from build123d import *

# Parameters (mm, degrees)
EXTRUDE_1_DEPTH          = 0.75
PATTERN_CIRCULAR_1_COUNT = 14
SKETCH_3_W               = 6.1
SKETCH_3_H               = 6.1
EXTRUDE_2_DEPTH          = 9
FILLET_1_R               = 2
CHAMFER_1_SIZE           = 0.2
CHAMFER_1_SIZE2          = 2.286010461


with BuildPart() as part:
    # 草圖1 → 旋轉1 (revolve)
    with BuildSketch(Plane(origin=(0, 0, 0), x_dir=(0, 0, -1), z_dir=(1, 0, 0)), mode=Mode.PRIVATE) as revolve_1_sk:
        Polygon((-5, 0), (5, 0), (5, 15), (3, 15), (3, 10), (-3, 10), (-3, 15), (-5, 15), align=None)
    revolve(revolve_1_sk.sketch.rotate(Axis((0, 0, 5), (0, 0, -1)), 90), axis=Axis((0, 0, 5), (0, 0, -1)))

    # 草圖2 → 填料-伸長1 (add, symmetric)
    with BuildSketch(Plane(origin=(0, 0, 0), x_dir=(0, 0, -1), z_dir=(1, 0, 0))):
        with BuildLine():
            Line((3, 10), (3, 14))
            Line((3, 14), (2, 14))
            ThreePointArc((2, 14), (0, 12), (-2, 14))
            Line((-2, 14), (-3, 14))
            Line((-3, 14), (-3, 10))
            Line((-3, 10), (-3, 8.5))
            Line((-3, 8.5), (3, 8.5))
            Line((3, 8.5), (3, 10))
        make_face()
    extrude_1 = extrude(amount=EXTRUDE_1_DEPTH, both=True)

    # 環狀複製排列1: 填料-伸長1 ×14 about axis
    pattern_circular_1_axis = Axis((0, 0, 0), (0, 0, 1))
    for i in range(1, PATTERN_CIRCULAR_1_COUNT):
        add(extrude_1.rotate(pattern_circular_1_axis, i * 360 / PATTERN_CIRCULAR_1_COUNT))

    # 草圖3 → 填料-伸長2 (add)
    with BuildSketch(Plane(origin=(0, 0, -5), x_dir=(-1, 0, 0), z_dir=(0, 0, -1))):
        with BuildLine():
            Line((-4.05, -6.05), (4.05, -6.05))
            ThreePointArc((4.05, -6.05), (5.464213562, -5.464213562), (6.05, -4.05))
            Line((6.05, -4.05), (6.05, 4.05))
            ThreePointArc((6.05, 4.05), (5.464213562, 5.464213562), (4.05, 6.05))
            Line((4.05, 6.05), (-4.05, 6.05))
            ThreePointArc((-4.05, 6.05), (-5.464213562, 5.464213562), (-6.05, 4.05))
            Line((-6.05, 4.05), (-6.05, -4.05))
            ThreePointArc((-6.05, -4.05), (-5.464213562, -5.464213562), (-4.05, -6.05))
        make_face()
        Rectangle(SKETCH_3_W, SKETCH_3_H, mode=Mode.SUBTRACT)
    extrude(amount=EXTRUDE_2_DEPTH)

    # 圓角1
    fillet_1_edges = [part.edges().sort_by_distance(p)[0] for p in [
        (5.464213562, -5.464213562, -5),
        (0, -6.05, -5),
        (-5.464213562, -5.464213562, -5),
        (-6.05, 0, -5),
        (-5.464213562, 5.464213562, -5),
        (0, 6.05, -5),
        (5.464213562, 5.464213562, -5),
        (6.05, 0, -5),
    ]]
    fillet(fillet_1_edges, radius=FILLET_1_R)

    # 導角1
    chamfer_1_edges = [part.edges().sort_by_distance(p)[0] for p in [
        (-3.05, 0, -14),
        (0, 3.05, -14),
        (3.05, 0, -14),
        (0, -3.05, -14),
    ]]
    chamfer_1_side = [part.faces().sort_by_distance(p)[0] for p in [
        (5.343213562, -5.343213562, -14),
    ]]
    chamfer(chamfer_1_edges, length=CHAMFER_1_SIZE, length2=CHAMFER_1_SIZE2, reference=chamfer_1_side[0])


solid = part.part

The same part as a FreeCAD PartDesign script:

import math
import FreeCAD as App
import Part
import Sketcher

V = App.Vector


def edges_at(feature, points):
    """Names of the edges that pass closest to the given points."""
    edges = feature.Shape.Edges
    near = lambda p: min(range(len(edges)), key=lambda i: edges[i].distToShape(Part.Vertex(*p))[0])
    return sorted({f"Edge{near(p) + 1}" for p in points})

doc = App.newDocument("Part")
body = doc.addObject("PartDesign::Body", "Body")

# Sketch on YZ plane
sketch1 = body.newObject("Sketcher::SketchObject", "Sketch")
sketch1.AttachmentSupport = (doc.getObject("YZ_Plane"), [""])
sketch1.MapMode = "FlatFace"
sketch1.addGeometry(Part.LineSegment(V(0, 5, 0), V(0, -5, 0)), False)
sketch1.addGeometry(Part.LineSegment(V(0, -5, 0), V(15, -5, 0)), False)
sketch1.addGeometry(Part.LineSegment(V(15, -5, 0), V(15, -3, 0)), False)
sketch1.addGeometry(Part.LineSegment(V(15, -3, 0), V(10, -3, 0)), False)
sketch1.addGeometry(Part.LineSegment(V(10, -3, 0), V(10, 3, 0)), False)
sketch1.addGeometry(Part.LineSegment(V(10, 3, 0), V(15, 3, 0)), False)
sketch1.addGeometry(Part.LineSegment(V(15, 3, 0), V(15, 5, 0)), False)
sketch1.addGeometry(Part.LineSegment(V(15, 5, 0), V(0, 5, 0)), False)
sketch1.addConstraint(Sketcher.Constraint("Coincident", 0, 2, 1, 1))
sketch1.addConstraint(Sketcher.Constraint("Coincident", 1, 2, 2, 1))
sketch1.addConstraint(Sketcher.Constraint("Coincident", 2, 2, 3, 1))
sketch1.addConstraint(Sketcher.Constraint("Coincident", 3, 2, 4, 1))
sketch1.addConstraint(Sketcher.Constraint("Coincident", 4, 2, 5, 1))
sketch1.addConstraint(Sketcher.Constraint("Coincident", 5, 2, 6, 1))
sketch1.addConstraint(Sketcher.Constraint("Coincident", 6, 2, 7, 1))
sketch1.addConstraint(Sketcher.Constraint("Coincident", 7, 2, 0, 1))
sketch1.addConstraint(Sketcher.Constraint("Vertical", 0))
sketch1.addConstraint(Sketcher.Constraint("Horizontal", 1))
sketch1.addConstraint(Sketcher.Constraint("Vertical", 2))
sketch1.addConstraint(Sketcher.Constraint("Horizontal", 3))
sketch1.addConstraint(Sketcher.Constraint("Vertical", 4))
sketch1.addConstraint(Sketcher.Constraint("Horizontal", 5))
sketch1.addConstraint(Sketcher.Constraint("Vertical", 6))
sketch1.addConstraint(Sketcher.Constraint("Horizontal", 7))
sketch1.addConstraint(Sketcher.Constraint("Symmetric", 0, 2, 7, 2, -1, 1))
sketch1.addConstraint(Sketcher.Constraint("Symmetric", 2, 2, 5, 2, -1))
sketch1.addConstraint(Sketcher.Constraint("DistanceX", 1, 1, 1, 2, 15.0))
sketch1.addConstraint(Sketcher.Constraint("DistanceX", 3, 2, 3, 1, 5.0))
sketch1.addConstraint(Sketcher.Constraint("DistanceY", 0, 2, 0, 1, 10.0))
sketch1.addConstraint(Sketcher.Constraint("DistanceY", 2, 1, 2, 2, 2.0))
revolution = body.newObject("PartDesign::Revolution", "Revolution")
revolution.Profile = sketch1
revolution.ReferenceAxis = (sketch1, ["V_Axis"])
revolution.Angle = 360

# Sketch on YZ plane
sketch2 = body.newObject("Sketcher::SketchObject", "Sketch001")
sketch2.AttachmentSupport = (doc.getObject("YZ_Plane"), [""])
sketch2.MapMode = "FlatFace"
sketch2.addGeometry(Part.LineSegment(V(14, -3, 0), V(14, -2, 0)), False)
sketch2.addGeometry(Part.ArcOfCircle(Part.Circle(V(14, 0, 0), V(0, 0, 1), 2), math.radians(90), math.radians(270)), False)
sketch2.addGeometry(Part.LineSegment(V(14, 2, 0), V(14, 3, 0)), False)
sketch2.addGeometry(Part.LineSegment(V(14, 3, 0), V(8.5, 3, 0)), False)
sketch2.addGeometry(Part.LineSegment(V(8.5, 3, 0), V(8.5, -3, 0)), False)
sketch2.addGeometry(Part.LineSegment(V(8.5, -3, 0), V(14, -3, 0)), False)
sketch2.addConstraint(Sketcher.Constraint("Coincident", 0, 2, 1, 2))
sketch2.addConstraint(Sketcher.Constraint("Coincident", 1, 1, 2, 1))
sketch2.addConstraint(Sketcher.Constraint("Coincident", 2, 2, 3, 1))
sketch2.addConstraint(Sketcher.Constraint("Coincident", 3, 2, 4, 1))
sketch2.addConstraint(Sketcher.Constraint("Coincident", 4, 2, 5, 1))
sketch2.addConstraint(Sketcher.Constraint("Coincident", 5, 2, 0, 1))
sketch2.addConstraint(Sketcher.Constraint("Vertical", 0))
sketch2.addConstraint(Sketcher.Constraint("Vertical", 2))
sketch2.addConstraint(Sketcher.Constraint("Horizontal", 3))
sketch2.addConstraint(Sketcher.Constraint("Vertical", 4))
sketch2.addConstraint(Sketcher.Constraint("Horizontal", 5))
sketch2.addConstraint(Sketcher.Constraint("Symmetric", 0, 2, 1, 1, -1))
sketch2.addConstraint(Sketcher.Constraint("Vertical", 1, 3, 0, 2))
sketch2.addConstraint(Sketcher.Constraint("Equal", 0, 2))
sketch2.addConstraint(Sketcher.Constraint("Radius", 1, 2.0))
sketch2.addConstraint(Sketcher.Constraint("DistanceY", 0, 1, 0, 2, 1.0))
sketch2.addConstraint(Sketcher.Constraint("DistanceX", 3, 2, 3, 1, 5.5))
sketch2.addConstraint(Sketcher.Constraint("DistanceX", -1, 1, 1, 3, 14.0))
pad1 = body.newObject("PartDesign::Pad", "Pad")
pad1.Profile = sketch2
pad1.Length = 1.5
pad1.Midplane = True
doc.recompute()

polarpattern = body.newObject("PartDesign::PolarPattern", "PolarPattern")
polarpattern.Originals = [pad1]
polarpattern.Axis = (doc.getObject("Z_Axis"), [""])
polarpattern.Angle = 360
polarpattern.Occurrences = 14
body.Tip = polarpattern

# Sketch on XY plane
sketch3 = body.newObject("Sketcher::SketchObject", "Sketch002")
sketch3.AttachmentSupport = (doc.getObject("XY_Plane"), [""])
sketch3.MapMode = "FlatFace"
sketch3.AttachmentOffset = App.Placement(V(0, 0, -5), App.Rotation())
sketch3.addGeometry(Part.LineSegment(V(4.05, -6.05, 0), V(-4.05, -6.05, 0)), False)
sketch3.addGeometry(Part.ArcOfCircle(Part.Circle(V(-4.05, -4.05, 0), V(0, 0, 1), 2), math.radians(-180), math.radians(-90)), False)
sketch3.addGeometry(Part.LineSegment(V(-6.05, -4.05, 0), V(-6.05, 4.05, 0)), False)
sketch3.addGeometry(Part.ArcOfCircle(Part.Circle(V(-4.05, 4.05, 0), V(0, 0, 1), 2), math.radians(90), math.radians(180)), False)
sketch3.addGeometry(Part.LineSegment(V(-4.05, 6.05, 0), V(4.05, 6.05, 0)), False)
sketch3.addGeometry(Part.ArcOfCircle(Part.Circle(V(4.05, 4.05, 0), V(0, 0, 1), 2), math.radians(0), math.radians(90)), False)
sketch3.addGeometry(Part.LineSegment(V(6.05, 4.05, 0), V(6.05, -4.05, 0)), False)
sketch3.addGeometry(Part.ArcOfCircle(Part.Circle(V(4.05, -4.05, 0), V(0, 0, 1), 2), math.radians(-90), math.radians(0)), False)
sketch3.addGeometry(Part.LineSegment(V(-3.05, -3.05, 0), V(3.05, -3.05, 0)), False)
sketch3.addGeometry(Part.LineSegment(V(3.05, -3.05, 0), V(3.05, 3.05, 0)), False)
sketch3.addGeometry(Part.LineSegment(V(3.05, 3.05, 0), V(-3.05, 3.05, 0)), False)
sketch3.addGeometry(Part.LineSegment(V(-3.05, 3.05, 0), V(-3.05, -3.05, 0)), False)
sketch3.addConstraint(Sketcher.Constraint("Tangent", 0, 2, 1, 2))
sketch3.addConstraint(Sketcher.Constraint("Tangent", 1, 1, 2, 1))
sketch3.addConstraint(Sketcher.Constraint("Tangent", 2, 2, 3, 2))
sketch3.addConstraint(Sketcher.Constraint("Tangent", 3, 1, 4, 1))
sketch3.addConstraint(Sketcher.Constraint("Tangent", 4, 2, 5, 2))
sketch3.addConstraint(Sketcher.Constraint("Tangent", 5, 1, 6, 1))
sketch3.addConstraint(Sketcher.Constraint("Tangent", 6, 2, 7, 2))
sketch3.addConstraint(Sketcher.Constraint("Tangent", 7, 1, 0, 1))
sketch3.addConstraint(Sketcher.Constraint("Coincident", 8, 2, 9, 1))
sketch3.addConstraint(Sketcher.Constraint("Coincident", 9, 2, 10, 1))
sketch3.addConstraint(Sketcher.Constraint("Coincident", 10, 2, 11, 1))
sketch3.addConstraint(Sketcher.Constraint("Coincident", 11, 2, 8, 1))
sketch3.addConstraint(Sketcher.Constraint("Horizontal", 0))
sketch3.addConstraint(Sketcher.Constraint("Vertical", 2))
sketch3.addConstraint(Sketcher.Constraint("Horizontal", 4))
sketch3.addConstraint(Sketcher.Constraint("Vertical", 6))
sketch3.addConstraint(Sketcher.Constraint("Horizontal", 8))
sketch3.addConstraint(Sketcher.Constraint("Vertical", 9))
sketch3.addConstraint(Sketcher.Constraint("Horizontal", 10))
sketch3.addConstraint(Sketcher.Constraint("Vertical", 11))
sketch3.addConstraint(Sketcher.Constraint("Equal", 1, 3))
sketch3.addConstraint(Sketcher.Constraint("Equal", 3, 5))
sketch3.addConstraint(Sketcher.Constraint("Equal", 5, 7))
sketch3.addConstraint(Sketcher.Constraint("Symmetric", 1, 3, 5, 3, -1, 1))
sketch3.addConstraint(Sketcher.Constraint("Symmetric", 8, 2, 10, 2, -1, 1))
sketch3.addConstraint(Sketcher.Constraint("Equal", 4, 2))
sketch3.addConstraint(Sketcher.Constraint("Equal", 10, 9))
sketch3.addConstraint(Sketcher.Constraint("Radius", 1, 2.0))
sketch3.addConstraint(Sketcher.Constraint("DistanceX", 0, 2, 0, 1, 8.1))
sketch3.addConstraint(Sketcher.Constraint("DistanceX", 8, 1, 8, 2, 6.1))
pad2 = body.newObject("PartDesign::Pad", "Pad001")
pad2.Profile = sketch3
pad2.Length = 9
pad2.Reversed = True
doc.recompute()

fillet = body.newObject("PartDesign::Fillet", "Fillet")
fillet.Base = (pad2, edges_at(pad2, [
    (5.464, -5.464, -5),
    (0, -6.05, -5),
    (-5.464, -5.464, -5),
    (-6.05, 0, -5),
    (-5.464, 5.464, -5),
    (0, 6.05, -5),
    (5.464, 5.464, -5),
    (6.05, 0, -5),
]))
fillet.Radius = 2
doc.recompute()

chamfer = body.newObject("PartDesign::Chamfer", "Chamfer")
chamfer.Base = (fillet, edges_at(fillet, [
    (-3.05, 0, -14),
    (0, 3.05, -14),
    (3.05, 0, -14),
    (0, -3.05, -14),
]))
chamfer.ChamferType = "Two distances"
chamfer.Size = 0.2
chamfer.Size2 = 2.28601

doc.recompute()
